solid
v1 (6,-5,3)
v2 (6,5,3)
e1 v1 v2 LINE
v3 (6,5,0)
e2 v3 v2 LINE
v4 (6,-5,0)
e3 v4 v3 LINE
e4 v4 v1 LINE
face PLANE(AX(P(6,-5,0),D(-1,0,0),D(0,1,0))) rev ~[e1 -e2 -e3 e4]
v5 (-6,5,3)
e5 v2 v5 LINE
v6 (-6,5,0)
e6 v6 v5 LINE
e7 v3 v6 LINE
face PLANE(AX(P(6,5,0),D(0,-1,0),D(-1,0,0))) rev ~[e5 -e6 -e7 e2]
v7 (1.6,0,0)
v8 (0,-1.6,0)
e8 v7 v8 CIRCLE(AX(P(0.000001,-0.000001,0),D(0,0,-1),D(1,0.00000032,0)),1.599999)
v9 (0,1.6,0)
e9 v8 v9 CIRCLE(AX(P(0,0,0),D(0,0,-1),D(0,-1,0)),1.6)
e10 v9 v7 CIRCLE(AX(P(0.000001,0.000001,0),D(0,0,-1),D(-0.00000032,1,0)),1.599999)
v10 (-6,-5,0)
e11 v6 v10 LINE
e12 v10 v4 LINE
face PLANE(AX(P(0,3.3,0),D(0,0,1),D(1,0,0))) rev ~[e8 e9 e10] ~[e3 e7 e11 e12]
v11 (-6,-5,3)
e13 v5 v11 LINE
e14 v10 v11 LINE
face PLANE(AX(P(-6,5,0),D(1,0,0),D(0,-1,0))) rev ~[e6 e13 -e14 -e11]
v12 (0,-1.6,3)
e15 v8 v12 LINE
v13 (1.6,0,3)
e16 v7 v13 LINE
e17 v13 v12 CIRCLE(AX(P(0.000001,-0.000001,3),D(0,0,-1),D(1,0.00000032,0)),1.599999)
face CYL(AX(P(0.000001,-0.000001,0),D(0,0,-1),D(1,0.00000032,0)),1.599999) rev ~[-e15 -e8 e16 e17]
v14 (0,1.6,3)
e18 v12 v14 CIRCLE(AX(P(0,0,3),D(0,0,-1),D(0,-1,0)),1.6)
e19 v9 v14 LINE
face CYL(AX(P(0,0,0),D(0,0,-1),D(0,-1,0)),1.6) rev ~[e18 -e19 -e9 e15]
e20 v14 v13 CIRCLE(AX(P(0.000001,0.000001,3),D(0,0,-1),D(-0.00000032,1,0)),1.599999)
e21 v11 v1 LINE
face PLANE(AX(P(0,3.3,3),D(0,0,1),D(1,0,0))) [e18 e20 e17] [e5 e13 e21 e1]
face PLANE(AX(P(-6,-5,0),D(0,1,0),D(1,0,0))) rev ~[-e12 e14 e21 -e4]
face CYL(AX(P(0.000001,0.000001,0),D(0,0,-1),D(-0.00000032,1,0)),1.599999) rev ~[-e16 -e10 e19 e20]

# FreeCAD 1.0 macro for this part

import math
import FreeCAD as App
import Part
import Sketcher
Q = App.Units.Quantity

doc = App.newDocument("Part")
params = doc.addObject("Spreadsheet::Sheet", "Params")
for row, (alias, value) in enumerate([
    ("sketch1_radius", "1.599999 mm"),
    ("sketch1_width", "12 mm"),
    ("sketch1_height", "10 mm"),
    ("pad1_length", "3 mm"),
], start=1):
    params.set(f"A{row}", alias)
    params.set(f"B{row}", "=" + value)
    params.setAlias(f"B{row}", alias)

body = doc.addObject("PartDesign::Body", "Body")

# Sketch on XY plane
sketch1 = doc.addObject("Sketcher::SketchObject", "Sketch")
body.addObject(sketch1)
sketch1.AttachmentSupport = (doc.XY_Plane, [""])
sketch1.MapMode = "FlatFace"
sketch1.addGeometry(Part.LineSegment(App.Vector(-6, 5, 0), App.Vector(-6, -5, 0)), False)
sketch1.addGeometry(Part.LineSegment(App.Vector(-6, -5, 0), App.Vector(6, -5, 0)), False)
sketch1.addGeometry(Part.LineSegment(App.Vector(6, -5, 0), App.Vector(6, 5, 0)), False)
sketch1.addGeometry(Part.LineSegment(App.Vector(6, 5, 0), App.Vector(-6, 5, 0)), False)
sketch1.addGeometry(Part.ArcOfCircle(Part.Circle(App.Vector(0, 0, 0), App.Vector(0, 0, 1), 1.6), math.radians(-90), math.radians(0)), False)
sketch1.addGeometry(Part.ArcOfCircle(Part.Circle(App.Vector(0, 0, 0), App.Vector(0, 0, 1), 1.6), math.radians(90), math.radians(270)), False)
sketch1.addGeometry(Part.ArcOfCircle(Part.Circle(App.Vector(0, 0, 0), App.Vector(0, 0, 1), 1.6), math.radians(0), math.radians(90)), False)
sketch1.addConstraint(Sketcher.Constraint("Coincident", 0, 2, 1, 1))
sketch1.addConstraint(Sketcher.Constraint("Coincident", 1, 2, 2, 1))
sketch1.addConstraint(Sketcher.Constraint("Coincident", 2, 2, 3, 1))
sketch1.addConstraint(Sketcher.Constraint("Coincident", 3, 2, 0, 1))
sketch1.addConstraint(Sketcher.Constraint("Tangent", 4, 1, 5, 2))
sketch1.addConstraint(Sketcher.Constraint("Tangent", 5, 1, 6, 2))
sketch1.addConstraint(Sketcher.Constraint("Tangent", 6, 1, 4, 2))
sketch1.addConstraint(Sketcher.Constraint("Vertical", 0))
sketch1.addConstraint(Sketcher.Constraint("Horizontal", 1))
sketch1.addConstraint(Sketcher.Constraint("Vertical", 2))
sketch1.addConstraint(Sketcher.Constraint("Horizontal", 3))
sketch1.addConstraint(Sketcher.Constraint("Coincident", 4, 3, -1, 1))
sketch1.addConstraint(Sketcher.Constraint("Symmetric", 0, 2, 2, 2, -1, 1))
sketch1.addConstraint(Sketcher.Constraint("PointOnObject", 4, 1, -2))
sketch1.addConstraint(Sketcher.Constraint("PointOnObject", 5, 1, -2))
sketch1.addConstraint(Sketcher.Constraint("PointOnObject", 6, 1, -1))
sketch1.addConstraint(Sketcher.Constraint("Radius", 4, Q("1.599999 mm")))
sketch1.addConstraint(Sketcher.Constraint("DistanceX", 1, 1, 1, 2, Q("12 mm")))
sketch1.addConstraint(Sketcher.Constraint("DistanceY", 0, 2, 0, 1, Q("10 mm")))
sketch1.setExpression("Constraints[16]", "Params.sketch1_radius")
sketch1.setExpression("Constraints[17]", "Params.sketch1_width")
sketch1.setExpression("Constraints[18]", "Params.sketch1_height")
pad1 = doc.addObject("PartDesign::Pad", "Pad")
body.addObject(pad1)
pad1.Profile = sketch1
pad1.setExpression("Length", "Params.pad1_length")

doc.recompute()
